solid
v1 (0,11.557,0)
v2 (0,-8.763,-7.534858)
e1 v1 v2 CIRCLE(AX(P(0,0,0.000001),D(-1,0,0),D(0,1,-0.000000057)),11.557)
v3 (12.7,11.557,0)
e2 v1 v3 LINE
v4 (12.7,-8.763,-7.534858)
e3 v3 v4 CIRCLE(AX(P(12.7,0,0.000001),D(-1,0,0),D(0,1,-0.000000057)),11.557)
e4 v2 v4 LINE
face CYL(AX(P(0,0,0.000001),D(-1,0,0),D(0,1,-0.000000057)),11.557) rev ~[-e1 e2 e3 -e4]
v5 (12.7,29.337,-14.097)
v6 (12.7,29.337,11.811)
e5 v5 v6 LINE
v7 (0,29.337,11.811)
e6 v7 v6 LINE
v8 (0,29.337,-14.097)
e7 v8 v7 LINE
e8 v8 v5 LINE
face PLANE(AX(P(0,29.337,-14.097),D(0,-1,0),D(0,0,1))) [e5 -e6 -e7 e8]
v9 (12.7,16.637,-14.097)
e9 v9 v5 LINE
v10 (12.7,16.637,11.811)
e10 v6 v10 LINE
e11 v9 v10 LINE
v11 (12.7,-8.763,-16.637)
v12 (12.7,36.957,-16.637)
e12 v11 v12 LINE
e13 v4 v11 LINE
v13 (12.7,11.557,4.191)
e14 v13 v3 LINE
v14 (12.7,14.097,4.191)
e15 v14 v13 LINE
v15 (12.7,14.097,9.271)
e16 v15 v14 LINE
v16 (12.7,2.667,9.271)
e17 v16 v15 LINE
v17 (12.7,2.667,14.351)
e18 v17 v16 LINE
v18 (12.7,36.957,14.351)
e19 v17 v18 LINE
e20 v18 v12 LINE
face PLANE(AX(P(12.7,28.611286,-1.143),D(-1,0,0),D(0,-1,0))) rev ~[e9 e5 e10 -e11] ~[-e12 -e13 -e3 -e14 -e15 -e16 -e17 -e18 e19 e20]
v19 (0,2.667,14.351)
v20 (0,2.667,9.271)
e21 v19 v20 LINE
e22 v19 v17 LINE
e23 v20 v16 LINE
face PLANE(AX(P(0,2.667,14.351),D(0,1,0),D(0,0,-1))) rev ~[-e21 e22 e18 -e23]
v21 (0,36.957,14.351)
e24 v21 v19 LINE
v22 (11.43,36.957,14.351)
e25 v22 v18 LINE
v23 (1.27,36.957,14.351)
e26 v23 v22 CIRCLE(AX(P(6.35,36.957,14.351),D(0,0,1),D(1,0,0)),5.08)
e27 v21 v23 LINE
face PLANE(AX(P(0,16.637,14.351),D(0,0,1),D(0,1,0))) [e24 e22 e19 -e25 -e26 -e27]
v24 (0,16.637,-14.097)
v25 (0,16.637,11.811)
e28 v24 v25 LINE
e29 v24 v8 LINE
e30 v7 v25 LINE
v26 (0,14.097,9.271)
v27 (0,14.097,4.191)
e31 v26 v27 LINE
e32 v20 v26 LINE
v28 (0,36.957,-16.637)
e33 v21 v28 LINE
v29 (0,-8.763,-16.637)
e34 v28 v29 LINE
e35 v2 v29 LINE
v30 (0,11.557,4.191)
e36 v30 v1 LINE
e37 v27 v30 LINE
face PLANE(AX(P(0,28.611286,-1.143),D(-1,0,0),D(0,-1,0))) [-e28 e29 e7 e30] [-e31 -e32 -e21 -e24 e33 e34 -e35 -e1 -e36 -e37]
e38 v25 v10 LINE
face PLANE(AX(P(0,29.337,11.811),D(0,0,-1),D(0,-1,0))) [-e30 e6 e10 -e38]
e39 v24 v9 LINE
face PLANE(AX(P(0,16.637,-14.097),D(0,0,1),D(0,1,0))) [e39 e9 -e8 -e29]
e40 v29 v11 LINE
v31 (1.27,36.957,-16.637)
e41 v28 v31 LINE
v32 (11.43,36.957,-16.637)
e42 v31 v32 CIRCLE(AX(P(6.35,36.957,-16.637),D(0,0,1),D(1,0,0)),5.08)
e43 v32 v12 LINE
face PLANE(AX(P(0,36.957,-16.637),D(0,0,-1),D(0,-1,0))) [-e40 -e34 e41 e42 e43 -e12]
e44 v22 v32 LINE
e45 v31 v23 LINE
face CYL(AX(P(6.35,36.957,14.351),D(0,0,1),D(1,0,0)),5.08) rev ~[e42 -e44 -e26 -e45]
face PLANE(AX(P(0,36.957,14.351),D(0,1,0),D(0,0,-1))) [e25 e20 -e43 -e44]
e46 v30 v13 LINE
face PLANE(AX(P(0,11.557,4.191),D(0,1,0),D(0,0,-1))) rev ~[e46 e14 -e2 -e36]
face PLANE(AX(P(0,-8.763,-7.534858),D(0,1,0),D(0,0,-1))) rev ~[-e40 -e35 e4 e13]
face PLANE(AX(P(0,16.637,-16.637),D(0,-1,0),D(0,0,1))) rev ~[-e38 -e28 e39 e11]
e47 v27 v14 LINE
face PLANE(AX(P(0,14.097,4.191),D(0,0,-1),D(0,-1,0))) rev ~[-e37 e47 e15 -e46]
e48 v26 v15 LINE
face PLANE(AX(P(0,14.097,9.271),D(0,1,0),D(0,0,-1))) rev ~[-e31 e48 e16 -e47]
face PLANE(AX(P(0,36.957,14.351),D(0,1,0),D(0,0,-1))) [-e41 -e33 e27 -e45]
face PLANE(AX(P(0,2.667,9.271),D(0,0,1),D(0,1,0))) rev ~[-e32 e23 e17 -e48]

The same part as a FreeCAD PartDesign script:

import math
import FreeCAD as App
import Part
import Sketcher

V = App.Vector
Q = App.Units.Quantity


def add_polygon(sketch, points):
    """Adds a closed chain of lines whose ends are joined by coincident constraints."""
    first, n = sketch.GeometryCount, len(points)
    for a, b in zip(points, points[1:] + points[:1]):
        sketch.addGeometry(Part.LineSegment(App.Vector(*a, 0), App.Vector(*b, 0)), False)
    for i in range(n):
        sketch.addConstraint(Sketcher.Constraint("Coincident", first + i, 2, first + (i + 1) % n, 1))

doc = App.newDocument("Part")
params = doc.addObject("Spreadsheet::Sheet", "Params")
for row, (alias, value) in enumerate([
    ("sketch1_width", "1 in"),
    ("sketch1_width2", "0.1 in"),
    ("sketch1_height", "0.2 in"),
    ("sketch1_radius", "0.455 in"),
    ("sketch1_width3", "0.55 in"),
    ("pad1_length", "0.5 in"),
    ("sketch2_width", "0.8 in"),
    ("sketch2_width2", "0.5 in"),
    ("sketch2_height", "0.1 in"),
    ("sketch2_height2", "1.22 in"),
    ("pad2_length", "0.5 in"),
    ("sketch3_diameter", "0.4 in"),
    ("pocket1_length", "3 in"),
], start=1):
    params.set(f"A{row}", alias)
    params.set(f"B{row}", "=" + value)
    params.setAlias(f"B{row}", alias)

body = doc.addObject("PartDesign::Body", "Body")

# Sketch on YZ plane
sketch1 = body.newObject("Sketcher::SketchObject", "Sketch")
sketch1.AttachmentSupport = (doc.getObject("YZ_Plane"), [""])
sketch1.MapMode = "FlatFace"
sketch1.addGeometry([
    Part.ArcOfCircle(Part.Circle(V(0, 0.000001, 0), V(0, 0, 1), 11.557), math.radians(-139.309434), math.radians(-0.000003)),  # 0
    Part.LineSegment(V(-8.763, -7.534858, 0), V(-8.763, -16.637, 0)),  # 1
    Part.LineSegment(V(-8.763, -16.637, 0), V(16.637, -16.637, 0)),  # 2
    Part.LineSegment(V(16.637, -16.637, 0), V(16.637, 14.351, 0)),  # 3
    Part.LineSegment(V(16.637, 14.351, 0), V(2.667, 14.351, 0)),  # 4
    Part.LineSegment(V(2.667, 14.351, 0), V(2.667, 9.271, 0)),  # 5
    Part.LineSegment(V(2.667, 9.271, 0), V(14.097, 9.271, 0)),  # 6
    Part.LineSegment(V(14.097, 9.271, 0), V(14.097, 4.191, 0)),  # 7
    Part.LineSegment(V(14.097, 4.191, 0), V(11.557, 4.191, 0)),  # 8
    Part.LineSegment(V(11.557, 4.191, 0), V(11.557, 0, 0)),  # 9
], False)
sketch1.addConstraint([
    Sketcher.Constraint("Coincident", 0, 1, 1, 1),
    Sketcher.Constraint("Coincident", 1, 2, 2, 1),
    Sketcher.Constraint("Coincident", 2, 2, 3, 1),
    Sketcher.Constraint("Coincident", 3, 2, 4, 1),
    Sketcher.Constraint("Coincident", 4, 2, 5, 1),
    Sketcher.Constraint("Coincident", 5, 2, 6, 1),
    Sketcher.Constraint("Coincident", 6, 2, 7, 1),
    Sketcher.Constraint("Coincident", 7, 2, 8, 1),
    Sketcher.Constraint("Coincident", 8, 2, 9, 1),
    Sketcher.Constraint("Tangent", 9, 2, 0, 2),
    Sketcher.Constraint("Vertical", 1),
    Sketcher.Constraint("Horizontal", 2),
    Sketcher.Constraint("Vertical", 3),
    Sketcher.Constraint("Horizontal", 4),
    Sketcher.Constraint("Vertical", 5),
    Sketcher.Constraint("Horizontal", 6),
    Sketcher.Constraint("Vertical", 7),
    Sketcher.Constraint("Horizontal", 8),
    Sketcher.Constraint("Vertical", 9),
    Sketcher.Constraint("Coincident", 0, 3, -1, 1),
    Sketcher.Constraint("Equal", 5, 7),
    Sketcher.Constraint("DistanceX", 2, 1, 2, 2, Q("1 in")),
    Sketcher.Constraint("DistanceX", 8, 2, 8, 1, Q("0.1 in")),
    Sketcher.Constraint("DistanceY", 5, 2, 5, 1, Q("0.2 in")),
    Sketcher.Constraint("Radius", 0, Q("0.455 in")),
    Sketcher.Constraint("DistanceX", 4, 2, 4, 1, Q("0.55 in")),
    Sketcher.Constraint("DistanceX", 6, 1, 6, 2, Q("0.45 in")),
    Sketcher.Constraint("DistanceY", 3, 1, 3, 2, Q("1.22 in")),
    Sketcher.Constraint("DistanceY", 9, 2, 9, 1, Q("0.165 in")),
])
sketch1.setExpression("Constraints[21]", "Params.sketch1_width")
sketch1.setExpression("Constraints[22]", "Params.sketch1_width2")
sketch1.setExpression("Constraints[23]", "Params.sketch1_height")
sketch1.setExpression("Constraints[24]", "Params.sketch1_radius")
sketch1.setExpression("Constraints[25]", "Params.sketch1_width3")
pad1 = body.newObject("PartDesign::Pad", "Pad")
pad1.Profile = sketch1
pad1.setExpression("Length", "Params.pad1_length")

# Sketch on YZ plane
sketch2 = body.newObject("Sketcher::SketchObject", "Sketch001")
sketch2.AttachmentSupport = (doc.getObject("YZ_Plane"), [""])
sketch2.MapMode = "FlatFace"
add_polygon(sketch2, [(16.637, 11.811), (16.637, 14.351), (36.957, 14.351), (36.957, -16.637), (16.637, -16.637), (16.637, -14.097), (29.337, -14.097), (29.337, 11.811)])  # lines 0-7
sketch2.addConstraint([
    Sketcher.Constraint("Vertical", 0),
    Sketcher.Constraint("Horizontal", 1),
    Sketcher.Constraint("Vertical", 2),
    Sketcher.Constraint("Horizontal", 3),
    Sketcher.Constraint("Vertical", 4),
    Sketcher.Constraint("Horizontal", 5),
    Sketcher.Constraint("Vertical", 6),
    Sketcher.Constraint("Horizontal", 7),
    Sketcher.Constraint("Vertical", 0, 2, 3, 2),
    Sketcher.Constraint("Equal", 0, 4),
    Sketcher.Constraint("DistanceX", 1, 1, 1, 2, Q("0.8 in")),
    Sketcher.Constraint("DistanceX", 5, 1, 5, 2, Q("0.5 in")),
    Sketcher.Constraint("DistanceY", 0, 1, 0, 2, Q("0.1 in")),
    Sketcher.Constraint("DistanceY", 2, 2, 2, 1, Q("1.22 in")),
    Sketcher.Constraint("DistanceX", -1, 1, 0, 2, Q("0.655 in")),
    Sketcher.Constraint("DistanceY", -1, 1, 0, 2, Q("0.565 in")),
])
sketch2.setExpression("Constraints[18]", "Params.sketch2_width")
sketch2.setExpression("Constraints[19]", "Params.sketch2_width2")
sketch2.setExpression("Constraints[20]", "Params.sketch2_height")
sketch2.setExpression("Constraints[21]", "Params.sketch2_height2")
pad2 = body.newObject("PartDesign::Pad", "Pad001")
pad2.Profile = sketch2
pad2.setExpression("Length", "Params.pad2_length")

# Sketch on XY plane
sketch3 = body.newObject("Sketcher::SketchObject", "Sketch002")
sketch3.AttachmentSupport = (doc.getObject("XY_Plane"), [""])
sketch3.MapMode = "FlatFace"
sketch3.AttachmentOffset = App.Placement(V(0, 0, 0.565 * 25.4), App.Rotation())
sketch3.addGeometry(Part.Circle(V(6.35, 36.957, 0), V(0, 0, 1), 5.08), False)
sketch3.addConstraint([
    Sketcher.Constraint("Diameter", 0, Q("0.4 in")),
    Sketcher.Constraint("DistanceX", -1, 1, 0, 3, Q("0.25 in")),
    Sketcher.Constraint("DistanceY", -1, 1, 0, 3, Q("1.455 in")),
])
sketch3.setExpression("Constraints[0]", "Params.sketch3_diameter")
pocket1 = body.newObject("PartDesign::Pocket", "Pocket")
pocket1.Profile = sketch3
pocket1.setExpression("Length", "Params.pocket1_length")

doc.recompute()
